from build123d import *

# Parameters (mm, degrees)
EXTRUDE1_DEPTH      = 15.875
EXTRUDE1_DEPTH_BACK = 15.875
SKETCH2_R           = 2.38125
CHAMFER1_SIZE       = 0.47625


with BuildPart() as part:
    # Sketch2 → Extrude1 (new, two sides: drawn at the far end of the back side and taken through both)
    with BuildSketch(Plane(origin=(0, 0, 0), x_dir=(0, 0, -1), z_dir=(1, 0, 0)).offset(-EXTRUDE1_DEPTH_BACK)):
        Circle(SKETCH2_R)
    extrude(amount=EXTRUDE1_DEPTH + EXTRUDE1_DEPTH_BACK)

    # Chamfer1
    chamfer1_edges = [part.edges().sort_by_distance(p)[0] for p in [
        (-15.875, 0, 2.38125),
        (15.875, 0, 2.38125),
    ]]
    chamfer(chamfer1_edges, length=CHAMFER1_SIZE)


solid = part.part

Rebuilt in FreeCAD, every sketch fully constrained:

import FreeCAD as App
import Part
import Sketcher

V = App.Vector
Q = App.Units.Quantity


def edges_at(feature, points):
    """Names of the edges that pass closest to the given points."""
    edges = feature.Shape.Edges
    near = lambda p: min(range(len(edges)), key=lambda i: edges[i].distToShape(Part.Vertex(*p))[0])
    return sorted({f"Edge{near(p) + 1}" for p in points})

doc = App.newDocument("Part")
params = doc.addObject("Spreadsheet::Sheet", "Params")
for row, (alias, value) in enumerate([
    ("sketch1_diameter", "0.1875 in"),
    ("pad1_length", "0.625 in"),
    ("pad1_length2", "0.625 in"),
    ("chamfer_size", "0.47625 mm"),
], start=1):
    params.set(f"A{row}", alias)
    params.set(f"B{row}", "=" + value)
    params.setAlias(f"B{row}", alias)

body = doc.addObject("PartDesign::Body", "Body")

# Sketch on YZ plane
sketch1 = doc.addObject("Sketcher::SketchObject", "Sketch")
body.addObject(sketch1)
sketch1.AttachmentSupport = (doc.YZ_Plane, [""])
sketch1.MapMode = "FlatFace"
sketch1.addGeometry(Part.Circle(V(0, 0, 0), V(0, 0, 1), 2.4), False)
sketch1.addConstraint(Sketcher.Constraint("Coincident", 0, 3, -1, 1))
sketch1.addConstraint(Sketcher.Constraint("Diameter", 0, Q("0.1875 in")))
sketch1.setExpression("Constraints[1]", "Params.sketch1_diameter")
pad1 = doc.addObject("PartDesign::Pad", "Pad")
body.addObject(pad1)
pad1.Profile = sketch1
pad1.Type = "TwoLengths"
pad1.setExpression("Length", "Params.pad1_length")
pad1.setExpression("Length2", "Params.pad1_length2")
doc.recompute()

chamfer = doc.addObject("PartDesign::Chamfer", "Chamfer")
body.addObject(chamfer)
chamfer.Base = (pad1, edges_at(pad1, [(-15.875, 0, 2.381), (15.875, 0, 2.381)]))
chamfer.setExpression("Size", "Params.chamfer_size")

doc.recompute()
